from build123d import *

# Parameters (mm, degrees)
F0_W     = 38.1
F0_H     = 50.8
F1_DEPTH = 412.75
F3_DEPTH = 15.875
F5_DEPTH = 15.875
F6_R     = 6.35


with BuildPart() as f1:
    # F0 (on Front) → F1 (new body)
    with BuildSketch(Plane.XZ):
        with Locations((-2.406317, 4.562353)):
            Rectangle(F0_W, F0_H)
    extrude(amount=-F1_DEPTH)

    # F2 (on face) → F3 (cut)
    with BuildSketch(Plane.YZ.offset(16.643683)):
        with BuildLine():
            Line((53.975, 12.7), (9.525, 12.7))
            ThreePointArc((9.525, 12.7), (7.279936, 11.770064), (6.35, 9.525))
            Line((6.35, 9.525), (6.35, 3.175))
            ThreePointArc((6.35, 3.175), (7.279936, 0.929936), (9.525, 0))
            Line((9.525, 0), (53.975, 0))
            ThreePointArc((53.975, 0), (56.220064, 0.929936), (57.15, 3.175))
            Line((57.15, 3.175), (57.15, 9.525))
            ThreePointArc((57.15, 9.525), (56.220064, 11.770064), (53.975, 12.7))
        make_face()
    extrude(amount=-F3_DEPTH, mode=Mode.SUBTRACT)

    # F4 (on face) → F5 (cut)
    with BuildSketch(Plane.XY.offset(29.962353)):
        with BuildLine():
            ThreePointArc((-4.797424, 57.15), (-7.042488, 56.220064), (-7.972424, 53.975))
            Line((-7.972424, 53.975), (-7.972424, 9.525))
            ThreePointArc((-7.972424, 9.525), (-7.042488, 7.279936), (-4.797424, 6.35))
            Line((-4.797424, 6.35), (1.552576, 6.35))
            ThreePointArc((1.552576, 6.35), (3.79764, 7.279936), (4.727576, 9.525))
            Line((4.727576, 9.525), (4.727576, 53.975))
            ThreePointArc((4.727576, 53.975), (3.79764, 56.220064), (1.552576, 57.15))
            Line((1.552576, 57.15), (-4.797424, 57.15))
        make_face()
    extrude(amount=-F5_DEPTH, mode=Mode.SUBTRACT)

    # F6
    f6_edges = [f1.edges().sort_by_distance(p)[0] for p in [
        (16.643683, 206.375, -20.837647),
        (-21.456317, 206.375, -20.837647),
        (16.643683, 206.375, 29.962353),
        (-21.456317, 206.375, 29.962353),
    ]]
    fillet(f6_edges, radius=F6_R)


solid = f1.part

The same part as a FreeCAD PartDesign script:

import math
import FreeCAD as App
import Part
import Sketcher
from FreeCAD import Vector
Q = App.Units.Quantity


def edges_at(feature, points):
    """Names of the edges that pass closest to the given points."""
    edges = feature.Shape.Edges
    near = lambda p: min(range(len(edges)), key=lambda i: edges[i].distToShape(Part.Vertex(*p))[0])
    return sorted({f"Edge{near(p) + 1}" for p in points})

doc = App.newDocument("Part")
body = doc.addObject("PartDesign::Body", "Body")

# Sketch on XZ plane
sketch1 = body.newObject("Sketcher::SketchObject", "Sketch")
sketch1.AttachmentSupport = (doc.getObject("XZ_Plane"), [""])
sketch1.MapMode = "FlatFace"
sketch1.addGeometry([
    Part.LineSegment(Vector(-21.456317, 29.962353, 0), Vector(-21.456317, -20.837647, 0)),
    Part.LineSegment(Vector(-21.456317, -20.837647, 0), Vector(16.643683, -20.837647, 0)),
    Part.LineSegment(Vector(16.643683, -20.837647, 0), Vector(16.643683, 29.962353, 0)),
    Part.LineSegment(Vector(16.643683, 29.962353, 0), Vector(-21.456317, 29.962353, 0)),
], False)
sketch1.addConstraint([
    Sketcher.Constraint("Coincident", 0, 2, 1, 1),
    Sketcher.Constraint("Coincident", 1, 2, 2, 1),
    Sketcher.Constraint("Coincident", 2, 2, 3, 1),
    Sketcher.Constraint("Coincident", 3, 2, 0, 1),
    Sketcher.Constraint("Vertical", 0),
    Sketcher.Constraint("Horizontal", 1),
    Sketcher.Constraint("Vertical", 2),
    Sketcher.Constraint("Horizontal", 3),
    Sketcher.Constraint("DistanceY", 0, 2, 0, 1, Q("2 in")),
    Sketcher.Constraint("DistanceX", 1, 1, 1, 2, Q("1.5 in")),
    Sketcher.Constraint("DistanceX", 0, 2, -1, 1, Q("21.456317 mm")),
    Sketcher.Constraint("DistanceY", 0, 2, -1, 1, Q("20.837647 mm")),
])
pad1 = body.newObject("PartDesign::Pad", "Pad")
pad1.Profile = sketch1
pad1.Length = Q("16.25 in")
pad1.Reversed = True

# Sketch on YZ plane
sketch2 = body.newObject("Sketcher::SketchObject", "Sketch001")
sketch2.AttachmentSupport = (doc.getObject("YZ_Plane"), [""])
sketch2.MapMode = "FlatFace"
sketch2.AttachmentOffset = App.Placement(Vector(0, 0, 16.643683), App.Rotation())
sketch2.addGeometry([
    Part.LineSegment(Vector(53.975, 12.7, 0), Vector(9.525, 12.7, 0)),  # 0
    Part.ArcOfCircle(Part.Circle(Vector(9.525, 9.525, 0), Vector(0, 0, 1), 3.175), math.radians(90.000002), math.radians(179.999998)),  # 1
    Part.LineSegment(Vector(6.35, 9.525, 0), Vector(6.35, 3.175, 0)),  # 2
    Part.ArcOfCircle(Part.Circle(Vector(9.525, 3.175, 0), Vector(0, 0, 1), 3.175), math.radians(-179.999998), math.radians(-90.000002)),  # 3
    Part.LineSegment(Vector(9.525, 0, 0), Vector(53.975, 0, 0)),  # 4
    Part.ArcOfCircle(Part.Circle(Vector(53.975, 3.175, 0), Vector(0, 0, 1), 3.175), math.radians(-89.999998), math.radians(-0.000002)),  # 5
    Part.LineSegment(Vector(57.15, 3.175, 0), Vector(57.15, 9.525, 0)),  # 6
    Part.ArcOfCircle(Part.Circle(Vector(53.975, 9.525, 0), Vector(0, 0, 1), 3.175), math.radians(0.000002), math.radians(89.999998)),  # 7
], False)
sketch2.addConstraint([
    Sketcher.Constraint("Tangent", 0, 2, 1, 1),
    Sketcher.Constraint("Tangent", 1, 2, 2, 1),
    Sketcher.Constraint("Tangent", 2, 2, 3, 1),
    Sketcher.Constraint("Tangent", 3, 2, 4, 1),
    Sketcher.Constraint("Tangent", 4, 2, 5, 1),
    Sketcher.Constraint("Tangent", 5, 2, 6, 1),
    Sketcher.Constraint("Tangent", 6, 2, 7, 1),
    Sketcher.Constraint("Tangent", 7, 2, 0, 1),
    Sketcher.Constraint("Horizontal", 0),
    Sketcher.Constraint("Vertical", 2),
    Sketcher.Constraint("Horizontal", 4),
    Sketcher.Constraint("Vertical", 6),
    Sketcher.Constraint("Equal", 1, 3),
    Sketcher.Constraint("Equal", 3, 5),
    Sketcher.Constraint("Equal", 5, 7),
    Sketcher.Constraint("PointOnObject", 3, 2, -1),
    Sketcher.Constraint("Radius", 1, Q("0.125 in")),
    Sketcher.Constraint("DistanceX", 0, 2, 0, 1, Q("1.75 in")),
    Sketcher.Constraint("DistanceY", 2, 2, 2, 1, Q("0.25 in")),
    Sketcher.Constraint("DistanceX", -1, 1, 1, 2, Q("0.25 in")),
])
pocket1 = body.newObject("PartDesign::Pocket", "Pocket")
pocket1.Profile = sketch2
pocket1.Length = Q("0.625 in")

# Sketch on XY plane
sketch3 = body.newObject("Sketcher::SketchObject", "Sketch002")
sketch3.AttachmentSupport = (doc.getObject("XY_Plane"), [""])
sketch3.MapMode = "FlatFace"
sketch3.AttachmentOffset = App.Placement(Vector(0, 0, 29.962353), App.Rotation())
sketch3.addGeometry([
    Part.ArcOfCircle(Part.Circle(Vector(-4.797424, 53.975, 0), Vector(0, 0, 1), 3.175), math.radians(90.000002), math.radians(179.999998)),  # 0
    Part.LineSegment(Vector(-7.972424, 53.975, 0), Vector(-7.972424, 9.525, 0)),  # 1
    Part.ArcOfCircle(Part.Circle(Vector(-4.797424, 9.525, 0), Vector(0, 0, 1), 3.175), math.radians(-179.999998), math.radians(-90.000002)),  # 2
    Part.LineSegment(Vector(-4.797424, 6.35, 0), Vector(1.552576, 6.35, 0)),  # 3
    Part.ArcOfCircle(Part.Circle(Vector(1.552576, 9.525, 0), Vector(0, 0, 1), 3.175), math.radians(-89.999998), math.radians(-0.000002)),  # 4
    Part.LineSegment(Vector(4.727576, 9.525, 0), Vector(4.727576, 53.975, 0)),  # 5
    Part.ArcOfCircle(Part.Circle(Vector(1.552576, 53.975, 0), Vector(0, 0, 1), 3.175), math.radians(0.000002), math.radians(89.999998)),  # 6
    Part.LineSegment(Vector(1.552576, 57.15, 0), Vector(-4.797424, 57.15, 0)),  # 7
], False)
sketch3.addConstraint([
    Sketcher.Constraint("Tangent", 0, 2, 1, 1),
    Sketcher.Constraint("Tangent", 1, 2, 2, 1),
    Sketcher.Constraint("Tangent", 2, 2, 3, 1),
    Sketcher.Constraint("Tangent", 3, 2, 4, 1),
    Sketcher.Constraint("Tangent", 4, 2, 5, 1),
    Sketcher.Constraint("Tangent", 5, 2, 6, 1),
    Sketcher.Constraint("Tangent", 6, 2, 7, 1),
    Sketcher.Constraint("Tangent", 7, 2, 0, 1),
    Sketcher.Constraint("Vertical", 1),
    Sketcher.Constraint("Horizontal", 3),
    Sketcher.Constraint("Vertical", 5),
    Sketcher.Constraint("Horizontal", 7),
    Sketcher.Constraint("Equal", 0, 2),
    Sketcher.Constraint("Equal", 2, 4),
    Sketcher.Constraint("Equal", 4, 6),
    Sketcher.Constraint("Radius", 0, Q("0.125 in")),
    Sketcher.Constraint("DistanceX", 3, 1, 3, 2, Q("0.25 in")),
    Sketcher.Constraint("DistanceY", 1, 2, 1, 1, Q("1.75 in")),
    Sketcher.Constraint("DistanceY", -1, 1, 2, 2, Q("0.25 in")),
    Sketcher.Constraint("DistanceX", 0, 3, -1, 1, Q("4.797424 mm")),
])
pocket2 = body.newObject("PartDesign::Pocket", "Pocket001")
pocket2.Profile = sketch3
pocket2.Length = Q("0.625 in")
doc.recompute()

fillet = body.newObject("PartDesign::Fillet", "Fillet")
fillet.Base = (pocket2, edges_at(pocket2, [
    (16.644, 206.375, -20.838),
    (-21.456, 206.375, -20.838),
    (16.644, 206.375, 29.962),
    (-21.456, 206.375, 29.962),
]))
fillet.Radius = Q("0.25 in")

doc.recompute()
